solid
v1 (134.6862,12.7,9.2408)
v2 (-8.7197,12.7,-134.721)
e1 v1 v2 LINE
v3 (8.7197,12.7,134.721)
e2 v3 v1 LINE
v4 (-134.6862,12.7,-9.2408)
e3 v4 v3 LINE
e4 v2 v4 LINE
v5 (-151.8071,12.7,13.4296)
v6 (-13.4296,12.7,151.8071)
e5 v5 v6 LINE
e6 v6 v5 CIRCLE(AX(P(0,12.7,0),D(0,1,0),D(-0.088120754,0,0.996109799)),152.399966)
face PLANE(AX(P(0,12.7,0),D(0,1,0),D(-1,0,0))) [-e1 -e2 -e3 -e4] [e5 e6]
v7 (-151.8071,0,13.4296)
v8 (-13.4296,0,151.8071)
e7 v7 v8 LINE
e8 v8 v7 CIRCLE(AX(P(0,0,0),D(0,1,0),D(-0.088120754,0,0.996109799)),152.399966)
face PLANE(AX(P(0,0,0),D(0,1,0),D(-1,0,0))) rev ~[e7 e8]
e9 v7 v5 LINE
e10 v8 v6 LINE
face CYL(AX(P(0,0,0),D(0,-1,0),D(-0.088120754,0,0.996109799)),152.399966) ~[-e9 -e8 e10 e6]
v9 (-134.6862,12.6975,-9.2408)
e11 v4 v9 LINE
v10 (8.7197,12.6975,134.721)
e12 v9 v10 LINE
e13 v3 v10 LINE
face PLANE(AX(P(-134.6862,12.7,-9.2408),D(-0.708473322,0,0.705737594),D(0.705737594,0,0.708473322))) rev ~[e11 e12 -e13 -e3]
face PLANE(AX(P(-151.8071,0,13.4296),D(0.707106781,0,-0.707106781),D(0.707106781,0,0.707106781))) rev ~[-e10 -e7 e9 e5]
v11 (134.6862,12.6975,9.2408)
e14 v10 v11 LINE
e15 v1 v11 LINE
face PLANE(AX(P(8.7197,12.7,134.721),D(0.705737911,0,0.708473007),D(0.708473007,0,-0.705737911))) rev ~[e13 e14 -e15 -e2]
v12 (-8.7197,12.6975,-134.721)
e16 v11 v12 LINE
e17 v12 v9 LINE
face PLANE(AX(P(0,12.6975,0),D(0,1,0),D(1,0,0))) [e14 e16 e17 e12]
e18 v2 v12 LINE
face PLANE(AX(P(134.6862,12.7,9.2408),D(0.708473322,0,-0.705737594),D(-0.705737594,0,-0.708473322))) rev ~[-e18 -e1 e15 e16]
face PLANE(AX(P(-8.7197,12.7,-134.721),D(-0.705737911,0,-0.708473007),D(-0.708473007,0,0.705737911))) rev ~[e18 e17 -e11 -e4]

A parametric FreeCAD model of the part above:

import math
import FreeCAD as App
import Part
import Sketcher

V = App.Vector
Q = App.Units.Quantity

doc = App.newDocument("Part")
body = doc.addObject("PartDesign::Body", "Body")

# Sketch on XZ plane
sketch1 = body.newObject("Sketcher::SketchObject", "Sketch")
sketch1.AttachmentSupport = (doc.getObject("XZ_Plane"), [""])
sketch1.MapMode = "FlatFace"
sketch1.addGeometry(Part.LineSegment(V(-152, 13, 0), V(-13, 152, 0)), False)
sketch1.addGeometry(Part.ArcOfCircle(Part.Circle(V(0, 0, 0), V(0, 0, 1), 152), math.radians(175), math.radians(455)), False)
sketch1.addConstraint(Sketcher.Constraint("Coincident", 0, 1, 1, 1))
sketch1.addConstraint(Sketcher.Constraint("Coincident", 1, 2, 0, 2))
sketch1.addConstraint(Sketcher.Constraint("Coincident", 1, 3, -1, 1))
sketch1.addConstraint(Sketcher.Constraint("Radius", 1, Q("6 in")))
sketch1.addConstraint(Sketcher.Constraint("Angle", 0, Q("45 deg")))
sketch1.addConstraint(Sketcher.Constraint("Distance", 0, 195.6953))
pad1 = body.newObject("PartDesign::Pad", "Pad")
pad1.Profile = sketch1
pad1.Length = Q("0.5 in")
pad1.Reversed = True

# Sketch on XZ plane
sketch2 = body.newObject("Sketcher::SketchObject", "Sketch001")
sketch2.AttachmentSupport = (doc.getObject("XZ_Plane"), [""])
sketch2.MapMode = "FlatFace"
sketch2.AttachmentOffset = App.Placement(V(0, 0, -0.5 * 25.4), App.Rotation())
sketch2.addGeometry(Part.LineSegment(V(-9, -135, 0), V(-135, -9, 0)), False)
sketch2.addGeometry(Part.LineSegment(V(-135, -9, 0), V(9, 135, 0)), False)
sketch2.addGeometry(Part.LineSegment(V(9, 135, 0), V(135, 9, 0)), False)
sketch2.addGeometry(Part.LineSegment(V(135, 9, 0), V(-9, -135, 0)), False)
sketch2.addConstraint(Sketcher.Constraint("Coincident", 0, 2, 1, 1))
sketch2.addConstraint(Sketcher.Constraint("Coincident", 1, 2, 2, 1))
sketch2.addConstraint(Sketcher.Constraint("Coincident", 2, 2, 3, 1))
sketch2.addConstraint(Sketcher.Constraint("Coincident", 3, 2, 0, 1))
sketch2.addConstraint(Sketcher.Constraint("Symmetric", 0, 2, 2, 2, -1, 1))
sketch2.addConstraint(Sketcher.Constraint("Symmetric", 1, 2, 3, 2, -1, 1))
sketch2.addConstraint(Sketcher.Constraint("Perpendicular", 0, 1))
sketch2.addConstraint(Sketcher.Constraint("Distance", 0, Q("7 in")))
sketch2.addConstraint(Sketcher.Constraint("Distance", 1, Q("8 in")))
sketch2.addConstraint(Sketcher.Constraint("Angle", 0, Q("135.1108 deg")))
pocket1 = body.newObject("PartDesign::Pocket", "Pocket")
pocket1.Profile = sketch2
pocket1.Length = Q("0.0000984 in")
pocket1.Reversed = True

doc.recompute()
